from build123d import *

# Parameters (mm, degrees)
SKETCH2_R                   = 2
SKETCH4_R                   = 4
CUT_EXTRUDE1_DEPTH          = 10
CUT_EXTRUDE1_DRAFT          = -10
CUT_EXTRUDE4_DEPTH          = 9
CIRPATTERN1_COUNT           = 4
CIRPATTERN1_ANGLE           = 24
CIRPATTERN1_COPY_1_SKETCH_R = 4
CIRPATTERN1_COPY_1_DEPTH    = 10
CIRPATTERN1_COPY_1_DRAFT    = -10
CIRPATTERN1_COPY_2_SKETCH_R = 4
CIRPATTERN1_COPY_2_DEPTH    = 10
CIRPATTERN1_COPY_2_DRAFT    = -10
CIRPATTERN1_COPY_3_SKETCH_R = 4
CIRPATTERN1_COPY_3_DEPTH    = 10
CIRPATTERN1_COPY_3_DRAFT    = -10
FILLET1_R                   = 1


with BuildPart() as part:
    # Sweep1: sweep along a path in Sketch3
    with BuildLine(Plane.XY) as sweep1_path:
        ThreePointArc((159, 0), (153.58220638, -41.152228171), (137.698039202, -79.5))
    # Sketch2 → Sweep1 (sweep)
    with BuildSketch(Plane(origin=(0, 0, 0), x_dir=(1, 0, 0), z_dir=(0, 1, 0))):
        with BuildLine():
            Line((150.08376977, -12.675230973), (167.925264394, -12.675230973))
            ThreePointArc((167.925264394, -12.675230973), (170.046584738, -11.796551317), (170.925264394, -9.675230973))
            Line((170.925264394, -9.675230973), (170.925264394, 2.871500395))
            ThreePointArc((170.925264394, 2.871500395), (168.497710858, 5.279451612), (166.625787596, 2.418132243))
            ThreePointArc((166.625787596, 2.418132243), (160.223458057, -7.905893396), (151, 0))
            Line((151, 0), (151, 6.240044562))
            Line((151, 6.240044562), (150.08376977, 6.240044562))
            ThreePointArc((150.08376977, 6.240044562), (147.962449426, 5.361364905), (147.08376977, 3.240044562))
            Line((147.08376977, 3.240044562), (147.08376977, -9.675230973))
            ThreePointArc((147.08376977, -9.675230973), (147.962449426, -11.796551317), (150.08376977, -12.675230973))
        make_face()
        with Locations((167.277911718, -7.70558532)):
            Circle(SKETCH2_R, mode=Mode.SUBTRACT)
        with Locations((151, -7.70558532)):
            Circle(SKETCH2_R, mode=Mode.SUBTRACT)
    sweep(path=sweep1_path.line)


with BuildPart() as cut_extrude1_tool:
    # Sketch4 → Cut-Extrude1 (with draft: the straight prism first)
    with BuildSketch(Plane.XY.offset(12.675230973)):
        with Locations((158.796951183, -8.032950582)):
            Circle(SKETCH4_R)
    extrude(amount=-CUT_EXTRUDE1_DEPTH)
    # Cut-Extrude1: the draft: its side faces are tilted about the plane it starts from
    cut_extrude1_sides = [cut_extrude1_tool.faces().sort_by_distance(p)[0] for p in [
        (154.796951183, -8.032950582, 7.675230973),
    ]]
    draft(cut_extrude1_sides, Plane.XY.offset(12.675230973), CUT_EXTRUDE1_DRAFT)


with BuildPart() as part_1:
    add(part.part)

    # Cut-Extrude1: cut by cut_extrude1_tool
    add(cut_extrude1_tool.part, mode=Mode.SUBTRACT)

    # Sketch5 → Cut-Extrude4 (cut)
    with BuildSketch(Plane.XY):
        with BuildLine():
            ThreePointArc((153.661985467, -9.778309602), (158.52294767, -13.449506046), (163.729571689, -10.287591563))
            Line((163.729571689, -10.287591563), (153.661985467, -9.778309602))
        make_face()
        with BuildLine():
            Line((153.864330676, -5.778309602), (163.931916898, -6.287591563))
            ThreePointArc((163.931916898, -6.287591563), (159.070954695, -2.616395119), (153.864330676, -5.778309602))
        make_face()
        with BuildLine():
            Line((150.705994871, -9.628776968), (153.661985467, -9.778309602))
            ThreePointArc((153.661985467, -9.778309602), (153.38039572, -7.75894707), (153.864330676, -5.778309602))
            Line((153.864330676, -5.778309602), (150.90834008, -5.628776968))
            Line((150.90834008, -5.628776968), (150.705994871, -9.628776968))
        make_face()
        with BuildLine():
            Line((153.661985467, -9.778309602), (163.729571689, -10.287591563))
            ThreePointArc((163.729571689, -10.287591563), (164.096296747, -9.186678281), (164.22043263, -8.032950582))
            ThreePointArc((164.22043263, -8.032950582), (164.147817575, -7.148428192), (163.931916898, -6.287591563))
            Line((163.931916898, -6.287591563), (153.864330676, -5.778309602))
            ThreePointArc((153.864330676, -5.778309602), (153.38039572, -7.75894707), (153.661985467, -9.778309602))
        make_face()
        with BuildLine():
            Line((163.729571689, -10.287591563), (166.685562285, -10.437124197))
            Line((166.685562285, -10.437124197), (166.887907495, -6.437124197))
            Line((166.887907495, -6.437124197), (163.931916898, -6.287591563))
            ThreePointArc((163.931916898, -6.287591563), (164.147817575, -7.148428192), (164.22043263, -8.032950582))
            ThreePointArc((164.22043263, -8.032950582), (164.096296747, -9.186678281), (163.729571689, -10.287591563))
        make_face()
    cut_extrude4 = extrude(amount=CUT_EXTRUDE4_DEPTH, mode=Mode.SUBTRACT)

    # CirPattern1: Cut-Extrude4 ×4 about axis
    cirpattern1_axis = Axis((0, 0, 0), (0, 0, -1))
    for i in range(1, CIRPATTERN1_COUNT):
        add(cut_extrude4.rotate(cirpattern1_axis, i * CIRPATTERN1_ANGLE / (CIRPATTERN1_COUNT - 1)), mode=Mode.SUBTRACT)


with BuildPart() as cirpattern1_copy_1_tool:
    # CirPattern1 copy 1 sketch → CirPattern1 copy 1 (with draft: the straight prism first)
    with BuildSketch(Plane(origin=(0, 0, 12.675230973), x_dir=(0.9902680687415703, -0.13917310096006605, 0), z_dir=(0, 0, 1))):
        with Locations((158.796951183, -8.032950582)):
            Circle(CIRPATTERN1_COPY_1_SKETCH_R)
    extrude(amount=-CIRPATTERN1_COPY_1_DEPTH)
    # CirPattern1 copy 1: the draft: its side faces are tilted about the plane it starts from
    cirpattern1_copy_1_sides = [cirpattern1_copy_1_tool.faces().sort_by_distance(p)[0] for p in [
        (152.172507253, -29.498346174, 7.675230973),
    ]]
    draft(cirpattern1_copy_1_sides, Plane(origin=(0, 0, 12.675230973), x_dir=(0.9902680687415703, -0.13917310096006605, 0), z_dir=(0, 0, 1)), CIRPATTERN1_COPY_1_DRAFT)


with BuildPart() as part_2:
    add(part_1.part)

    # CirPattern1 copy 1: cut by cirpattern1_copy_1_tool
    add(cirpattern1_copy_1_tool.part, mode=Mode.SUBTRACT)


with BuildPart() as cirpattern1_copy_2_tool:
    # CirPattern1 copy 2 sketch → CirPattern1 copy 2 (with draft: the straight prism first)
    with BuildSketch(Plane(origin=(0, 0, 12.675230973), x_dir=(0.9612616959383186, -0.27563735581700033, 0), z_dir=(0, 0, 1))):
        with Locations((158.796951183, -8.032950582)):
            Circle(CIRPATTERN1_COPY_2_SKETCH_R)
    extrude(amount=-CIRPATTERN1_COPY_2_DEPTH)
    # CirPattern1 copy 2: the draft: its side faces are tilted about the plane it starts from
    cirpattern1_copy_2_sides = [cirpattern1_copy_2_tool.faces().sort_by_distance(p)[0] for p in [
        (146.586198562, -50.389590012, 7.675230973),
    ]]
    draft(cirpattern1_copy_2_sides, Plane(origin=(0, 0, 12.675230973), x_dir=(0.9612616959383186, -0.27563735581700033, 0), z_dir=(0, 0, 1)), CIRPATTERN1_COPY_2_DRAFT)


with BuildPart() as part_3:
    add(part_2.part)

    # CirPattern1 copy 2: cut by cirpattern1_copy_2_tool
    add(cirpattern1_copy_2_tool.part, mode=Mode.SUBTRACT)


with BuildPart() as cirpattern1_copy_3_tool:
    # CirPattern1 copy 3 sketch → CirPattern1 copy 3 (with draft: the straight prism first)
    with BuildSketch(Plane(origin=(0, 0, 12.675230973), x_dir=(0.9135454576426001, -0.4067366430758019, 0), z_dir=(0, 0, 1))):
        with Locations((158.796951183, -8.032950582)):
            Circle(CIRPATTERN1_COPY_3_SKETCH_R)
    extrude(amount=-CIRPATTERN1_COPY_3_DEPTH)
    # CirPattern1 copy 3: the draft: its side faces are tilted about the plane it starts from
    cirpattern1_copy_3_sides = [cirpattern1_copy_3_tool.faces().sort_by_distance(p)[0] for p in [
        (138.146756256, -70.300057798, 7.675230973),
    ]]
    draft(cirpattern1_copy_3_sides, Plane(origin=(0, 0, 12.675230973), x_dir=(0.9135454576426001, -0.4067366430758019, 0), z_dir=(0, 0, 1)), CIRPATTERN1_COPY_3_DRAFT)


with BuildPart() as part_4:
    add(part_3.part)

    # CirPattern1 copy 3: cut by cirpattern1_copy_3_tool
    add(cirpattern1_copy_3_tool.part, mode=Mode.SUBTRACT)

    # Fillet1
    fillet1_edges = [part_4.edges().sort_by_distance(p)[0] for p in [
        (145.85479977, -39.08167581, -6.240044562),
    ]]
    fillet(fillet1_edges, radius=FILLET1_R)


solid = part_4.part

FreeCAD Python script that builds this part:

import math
import FreeCAD as App
import Part
import Sketcher
Q = App.Units.Quantity


def edges_at(feature, points):
    """Names of the edges that pass closest to the given points."""
    edges = feature.Shape.Edges
    near = lambda p: min(range(len(edges)), key=lambda i: edges[i].distToShape(Part.Vertex(*p))[0])
    return sorted({f"Edge{near(p) + 1}" for p in points})


def faces_at(feature, points):
    """Names of the faces that lie closest to the given points."""
    faces = feature.Shape.Faces
    near = lambda p: min(range(len(faces)), key=lambda i: faces[i].distToShape(Part.Vertex(*p))[0])
    return sorted({f"Face{near(p) + 1}" for p in points})

doc = App.newDocument("Part")
params = doc.addObject("Spreadsheet::Sheet", "Params")
for row, (alias, value) in enumerate([
    ("sketch1_diameter", "4 mm"),
    ("sketch1_radius", "3 mm"),
    ("sketch1_radius2", "8 mm"),
    ("sketch2_radius", "159 mm"),
    ("sketch3_diameter", "8 mm"),
    ("pad1_length", "10 mm"),
    ("draft_angle", "10 deg"),
    ("pocket1_length", "9 mm"),
    ("sketch5_diameter", "8 mm"),
    ("pad2_length", "10 mm"),
    ("draft2_angle", "10 deg"),
    ("sketch6_diameter", "8 mm"),
    ("pad3_length", "10 mm"),
    ("draft3_angle", "10 deg"),
    ("sketch7_diameter", "8 mm"),
    ("pad4_length", "10 mm"),
    ("draft4_angle", "10 deg"),
    ("fillet_radius", "1 mm"),
], start=1):
    params.set(f"A{row}", alias)
    params.set(f"B{row}", "=" + value)
    params.setAlias(f"B{row}", alias)

body = doc.addObject("PartDesign::Body", "Body")

# Sketch on XZ plane
sketch1 = body.newObject("Sketcher::SketchObject", "Sketch")
sketch1.AttachmentSupport = (doc.getObject("XZ_Plane"), [""])
sketch1.MapMode = "FlatFace"
sketch1.addGeometry(Part.LineSegment(App.Vector(150.08377, 12.675231, 0), App.Vector(167.925264, 12.675231, 0)), False)
sketch1.addGeometry(Part.ArcOfCircle(Part.Circle(App.Vector(167.925264, 9.675231, 0), App.Vector(0, 0, 1), 3), math.radians(0), math.radians(90)), False)
sketch1.addGeometry(Part.LineSegment(App.Vector(170.925264, 9.675231, 0), App.Vector(170.925264, -2.8715, 0)), False)
sketch1.addGeometry(Part.ArcOfCircle(Part.Circle(App.Vector(168.7291, -3.085091, 0), App.Vector(0, 0, 1), 2.206526), math.radians(162.406213), math.radians(365.554908)), False)
sketch1.addGeometry(Part.ArcOfCircle(Part.Circle(App.Vector(159, 0, 0), App.Vector(0, 0, 1), 8), math.radians(-17.593787), math.radians(180)), False)
sketch1.addGeometry(Part.LineSegment(App.Vector(151, 0, 0), App.Vector(151, -6.240045, 0)), False)
sketch1.addGeometry(Part.LineSegment(App.Vector(151, -6.240045, 0), App.Vector(150.08377, -6.240045, 0)), False)
sketch1.addGeometry(Part.ArcOfCircle(Part.Circle(App.Vector(150.08377, -3.240045, 0), App.Vector(0, 0, 1), 3), math.radians(180), math.radians(270)), False)
sketch1.addGeometry(Part.LineSegment(App.Vector(147.08377, -3.240045, 0), App.Vector(147.08377, 9.675231, 0)), False)
sketch1.addGeometry(Part.ArcOfCircle(Part.Circle(App.Vector(150.08377, 9.675231, 0), App.Vector(0, 0, 1), 3), math.radians(90), math.radians(180)), False)
sketch1.addGeometry(Part.Circle(App.Vector(151, 7.705585, 0), App.Vector(0, 0, 1), 2), False)
sketch1.addGeometry(Part.Circle(App.Vector(167.277912, 7.705585, 0), App.Vector(0, 0, 1), 2), False)
sketch1.addConstraint(Sketcher.Constraint("Tangent", 0, 2, 1, 2))
sketch1.addConstraint(Sketcher.Constraint("Tangent", 1, 1, 2, 1))
sketch1.addConstraint(Sketcher.Constraint("Coincident", 2, 2, 3, 2))
sketch1.addConstraint(Sketcher.Constraint("Tangent", 3, 1, 4, 1))
sketch1.addConstraint(Sketcher.Constraint("Tangent", 4, 2, 5, 1))
sketch1.addConstraint(Sketcher.Constraint("Coincident", 5, 2, 6, 1))
sketch1.addConstraint(Sketcher.Constraint("Tangent", 6, 2, 7, 2))
sketch1.addConstraint(Sketcher.Constraint("Tangent", 7, 1, 8, 1))
sketch1.addConstraint(Sketcher.Constraint("Tangent", 8, 2, 9, 2))
sketch1.addConstraint(Sketcher.Constraint("Tangent", 9, 1, 0, 1))
sketch1.addConstraint(Sketcher.Constraint("Horizontal", 0))
sketch1.addConstraint(Sketcher.Constraint("Vertical", 2))
sketch1.addConstraint(Sketcher.Constraint("Vertical", 5))
sketch1.addConstraint(Sketcher.Constraint("Horizontal", 6))
sketch1.addConstraint(Sketcher.Constraint("Vertical", 8))
sketch1.addConstraint(Sketcher.Constraint("Equal", 1, 7))
sketch1.addConstraint(Sketcher.Constraint("Equal", 7, 9))
sketch1.addConstraint(Sketcher.Constraint("Equal", 10, 11))
sketch1.addConstraint(Sketcher.Constraint("PointOnObject", 4, 3, -1))
sketch1.addConstraint(Sketcher.Constraint("Horizontal", 10, 3, 11, 3))
sketch1.addConstraint(Sketcher.Constraint("Vertical", 10, 3, 4, 2))
sketch1.addConstraint(Sketcher.Constraint("Diameter", 10, Q("4 mm")))
sketch1.addConstraint(Sketcher.Constraint("Radius", 1, Q("3 mm")))
sketch1.addConstraint(Sketcher.Constraint("Radius", 4, Q("8 mm")))
sketch1.addConstraint(Sketcher.Constraint("DistanceX", -1, 1, 4, 3, Q("159 mm")))
sketch1.addConstraint(Sketcher.Constraint("Radius", 3, Q("2.206526 mm")))
sketch1.addConstraint(Sketcher.Constraint("DistanceX", 6, 2, 6, 1, Q("0.91623 mm")))
sketch1.addConstraint(Sketcher.Constraint("DistanceY", 2, 2, 2, 1, Q("12.546731 mm")))
sketch1.addConstraint(Sketcher.Constraint("DistanceX", -1, 1, 3, 3, Q("168.7291 mm")))
sketch1.addConstraint(Sketcher.Constraint("DistanceY", 2, 2, -1, 1, Q("2.8715 mm")))
sketch1.addConstraint(Sketcher.Constraint("DistanceY", 5, 2, 5, 1, Q("6.240045 mm")))
sketch1.addConstraint(Sketcher.Constraint("DistanceX", -1, 1, 11, 3, Q("167.277912 mm")))
sketch1.addConstraint(Sketcher.Constraint("DistanceY", 7, 3, 10, 3, Q("10.94563 mm")))
sketch1.setExpression("Constraints[21]", "Params.sketch1_diameter")
sketch1.setExpression("Constraints[22]", "Params.sketch1_radius")
sketch1.setExpression("Constraints[23]", "Params.sketch1_radius2")

# Sketch on XY plane
sketch2 = body.newObject("Sketcher::SketchObject", "Sketch001")
sketch2.AttachmentSupport = (doc.getObject("XY_Plane"), [""])
sketch2.MapMode = "FlatFace"
sketch2.addGeometry(Part.ArcOfCircle(Part.Circle(App.Vector(0, 0, 0), App.Vector(0, 0, 1), 159), math.radians(-30), math.radians(0)), False)
sketch2.addConstraint(Sketcher.Constraint("Coincident", 0, 3, -1, 1))
sketch2.addConstraint(Sketcher.Constraint("PointOnObject", 0, 2, -1))
sketch2.addConstraint(Sketcher.Constraint("Radius", 0, Q("159 mm")))
sketch2.addConstraint(Sketcher.Constraint("DistanceY", 0, 1, -1, 1, Q("79.5 mm")))
sketch2.setExpression("Constraints[2]", "Params.sketch2_radius")
doc.recompute()

additivepipe = body.newObject("PartDesign::AdditivePipe", "AdditivePipe")
additivepipe.Profile = sketch1
additivepipe.Spine = (sketch2, ["Edge1"])
body2 = doc.addObject("PartDesign::Body", "Body001")

# Sketch on XY plane
sketch3 = body2.newObject("Sketcher::SketchObject", "Sketch002")
sketch3.AttachmentSupport = (doc.getObject("XY_Plane001"), [""])
sketch3.MapMode = "FlatFace"
sketch3.AttachmentOffset = App.Placement(App.Vector(0, 0, 12.675231), App.Rotation())
sketch3.addGeometry(Part.Circle(App.Vector(158.796951, -8.032951, 0), App.Vector(0, 0, 1), 4), False)
sketch3.addConstraint(Sketcher.Constraint("Diameter", 0, Q("8 mm")))
sketch3.addConstraint(Sketcher.Constraint("DistanceX", -1, 1, 0, 3, Q("158.796951 mm")))
sketch3.addConstraint(Sketcher.Constraint("DistanceY", 0, 3, -1, 1, Q("8.032951 mm")))
sketch3.setExpression("Constraints[0]", "Params.sketch3_diameter")
pad1 = body2.newObject("PartDesign::Pad", "Pad")
pad1.Profile = sketch3
pad1.setExpression("Length", "Params.pad1_length")
pad1.Reversed = True
doc.recompute()

datumplane = body2.newObject("PartDesign::Plane", "DatumPlane")
datumplane.AttachmentSupport = (doc.getObject("XY_Plane001"), [""])
datumplane.MapMode = "FlatFace"
datumplane.AttachmentOffset = App.Placement(App.Vector(0, 0, 12.675231), App.Rotation())
draft = body2.newObject("PartDesign::Draft", "Draft")
draft.Base = (pad1, faces_at(pad1, [(154.797, -8.033, 7.675)]))
draft.NeutralPlane = (datumplane, [""])
draft.setExpression("Angle", "Params.draft_angle")
draft.Reversed = True
doc.recompute()

boolean = body.newObject("PartDesign::Boolean", "Boolean")
boolean.Type = "Cut"
boolean.addObjects([body2])

# Sketch on XY plane
sketch4 = body.newObject("Sketcher::SketchObject", "Sketch003")
sketch4.AttachmentSupport = (doc.getObject("XY_Plane"), [""])
sketch4.MapMode = "FlatFace"
sketch4.addGeometry(Part.ArcOfCircle(Part.Circle(App.Vector(158.796951, -8.032951, 0), App.Vector(0, 0, 1), 5.423481), math.radians(-161.227261), math.radians(-24.564565)), False)
sketch4.addGeometry(Part.LineSegment(App.Vector(163.729572, -10.287592, 0), App.Vector(166.685562, -10.437124, 0)), False)
sketch4.addGeometry(Part.LineSegment(App.Vector(166.685562, -10.437124, 0), App.Vector(166.887907, -6.437124, 0)), False)
sketch4.addGeometry(Part.LineSegment(App.Vector(166.887907, -6.437124, 0), App.Vector(163.931917, -6.287592, 0)), False)
sketch4.addGeometry(Part.ArcOfCircle(Part.Circle(App.Vector(158.796951, -8.032951, 0), App.Vector(0, 0, 1), 5.423481), math.radians(18.772739), math.radians(155.435435)), False)
sketch4.addGeometry(Part.LineSegment(App.Vector(153.864331, -5.77831, 0), App.Vector(150.90834, -5.628777, 0)), False)
sketch4.addGeometry(Part.LineSegment(App.Vector(150.90834, -5.628777, 0), App.Vector(150.705995, -9.628777, 0)), False)
sketch4.addGeometry(Part.LineSegment(App.Vector(150.705995, -9.628777, 0), App.Vector(153.661985, -9.77831, 0)), False)
sketch4.addConstraint(Sketcher.Constraint("Coincident", 0, 2, 1, 1))
sketch4.addConstraint(Sketcher.Constraint("Coincident", 1, 2, 2, 1))
sketch4.addConstraint(Sketcher.Constraint("Coincident", 2, 2, 3, 1))
sketch4.addConstraint(Sketcher.Constraint("Coincident", 3, 2, 4, 1))
sketch4.addConstraint(Sketcher.Constraint("Coincident", 4, 2, 5, 1))
sketch4.addConstraint(Sketcher.Constraint("Coincident", 5, 2, 6, 1))
sketch4.addConstraint(Sketcher.Constraint("Coincident", 6, 2, 7, 1))
sketch4.addConstraint(Sketcher.Constraint("Coincident", 7, 2, 0, 1))
sketch4.addConstraint(Sketcher.Constraint("Coincident", 4, 3, 0, 3))
sketch4.addConstraint(Sketcher.Constraint("Equal", 0, 4))
sketch4.addConstraint(Sketcher.Constraint("Perpendicular", 1, 2))
sketch4.addConstraint(Sketcher.Constraint("Perpendicular", 2, 3))
sketch4.addConstraint(Sketcher.Constraint("Parallel", 3, 5))
sketch4.addConstraint(Sketcher.Constraint("Perpendicular", 5, 6))
sketch4.addConstraint(Sketcher.Constraint("Perpendicular", 6, 7))
sketch4.addConstraint(Sketcher.Constraint("Equal", 1, 3))
sketch4.addConstraint(Sketcher.Constraint("Equal", 3, 5))
sketch4.addConstraint(Sketcher.Constraint("Equal", 2, 6))
sketch4.addConstraint(Sketcher.Constraint("Equal", 5, 7))
sketch4.addConstraint(Sketcher.Constraint("DistanceY", 1, 2, 2, 2, Q("4 mm")))
sketch4.addConstraint(Sketcher.Constraint("Radius", 0, Q("5.423481 mm")))
sketch4.addConstraint(Sketcher.Constraint("Distance", 1, Q("2.95977 mm")))
sketch4.addConstraint(Sketcher.Constraint("DistanceX", -1, 1, 0, 3, Q("158.796951 mm")))
sketch4.addConstraint(Sketcher.Constraint("DistanceY", 0, 3, -1, 1, Q("8.032951 mm")))
sketch4.addConstraint(Sketcher.Constraint("DistanceX", -1, 1, 0, 2, Q("163.729572 mm")))
pocket1 = body.newObject("PartDesign::Pocket", "Pocket")
pocket1.Profile = sketch4
pocket1.setExpression("Length", "Params.pocket1_length")
pocket1.Reversed = True
doc.recompute()

polarpattern = body.newObject("PartDesign::PolarPattern", "PolarPattern")
polarpattern.Originals = [pocket1]
polarpattern.Axis = (doc.getObject("Z_Axis"), [""])
polarpattern.Angle = 24
polarpattern.Occurrences = 4
polarpattern.Reversed = True
body.Tip = polarpattern
body3 = doc.addObject("PartDesign::Body", "Body002")

# Sketch on XY plane
sketch5 = body3.newObject("Sketcher::SketchObject", "Sketch004")
sketch5.AttachmentSupport = (doc.getObject("XY_Plane002"), [""])
sketch5.MapMode = "FlatFace"
sketch5.AttachmentOffset = App.Placement(App.Vector(0, 0, 12.675231), App.Rotation())
sketch5.addGeometry(Part.Circle(App.Vector(156.13358, -30.055039, 0), App.Vector(0, 0, 1), 4), False)
sketch5.addConstraint(Sketcher.Constraint("Diameter", 0, Q("8 mm")))
sketch5.addConstraint(Sketcher.Constraint("DistanceX", -1, 1, 0, 3, Q("156.13358 mm")))
sketch5.addConstraint(Sketcher.Constraint("DistanceY", 0, 3, -1, 1, Q("30.055039 mm")))
sketch5.setExpression("Constraints[0]", "Params.sketch5_diameter")
pad2 = body3.newObject("PartDesign::Pad", "Pad001")
pad2.Profile = sketch5
pad2.setExpression("Length", "Params.pad2_length")
pad2.Reversed = True
doc.recompute()

datumplane2 = body3.newObject("PartDesign::Plane", "DatumPlane001")
datumplane2.AttachmentSupport = (doc.getObject("XY_Plane002"), [""])
datumplane2.MapMode = "FlatFace"
datumplane2.AttachmentOffset = App.Placement(App.Vector(0, 0, 12.675231), App.Rotation())
draft2 = body3.newObject("PartDesign::Draft", "Draft001")
draft2.Base = (pad2, faces_at(pad2, [(152.173, -29.498, 7.675)]))
draft2.NeutralPlane = (datumplane2, [""])
draft2.setExpression("Angle", "Params.draft2_angle")
draft2.Reversed = True
doc.recompute()

boolean2 = body.newObject("PartDesign::Boolean", "Boolean001")
boolean2.Type = "Cut"
boolean2.addObjects([body3])
body4 = doc.addObject("PartDesign::Body", "Body003")

# Sketch on XY plane
sketch6 = body4.newObject("Sketcher::SketchObject", "Sketch005")
sketch6.AttachmentSupport = (doc.getObject("XY_Plane003"), [""])
sketch6.MapMode = "FlatFace"
sketch6.AttachmentOffset = App.Placement(App.Vector(0, 0, 12.675231), App.Rotation())
sketch6.addGeometry(Part.Circle(App.Vector(150.431245, -51.492139, 0), App.Vector(0, 0, 1), 4), False)
sketch6.addConstraint(Sketcher.Constraint("Diameter", 0, Q("8 mm")))
sketch6.addConstraint(Sketcher.Constraint("DistanceY", 0, 3, -1, 1, Q("51.492139 mm")))
sketch6.addConstraint(Sketcher.Constraint("DistanceX", -1, 1, 0, 3, Q("150.431245 mm")))
sketch6.setExpression("Constraints[0]", "Params.sketch6_diameter")
pad3 = body4.newObject("PartDesign::Pad", "Pad002")
pad3.Profile = sketch6
pad3.setExpression("Length", "Params.pad3_length")
pad3.Reversed = True
doc.recompute()

datumplane3 = body4.newObject("PartDesign::Plane", "DatumPlane002")
datumplane3.AttachmentSupport = (doc.getObject("XY_Plane003"), [""])
datumplane3.MapMode = "FlatFace"
datumplane3.AttachmentOffset = App.Placement(App.Vector(0, 0, 12.675231), App.Rotation())
draft3 = body4.newObject("PartDesign::Draft", "Draft002")
draft3.Base = (pad3, faces_at(pad3, [(146.586, -50.39, 7.675)]))
draft3.NeutralPlane = (datumplane3, [""])
draft3.setExpression("Angle", "Params.draft3_angle")
draft3.Reversed = True
doc.recompute()

boolean3 = body.newObject("PartDesign::Boolean", "Boolean002")
boolean3.Type = "Cut"
boolean3.addObjects([body4])
body5 = doc.addObject("PartDesign::Body", "Body004")

# Sketch on XY plane
sketch7 = body5.newObject("Sketcher::SketchObject", "Sketch006")
sketch7.AttachmentSupport = (doc.getObject("XY_Plane004"), [""])
sketch7.MapMode = "FlatFace"
sketch7.AttachmentOffset = App.Placement(App.Vector(0, 0, 12.675231), App.Rotation())
sketch7.addGeometry(Part.Circle(App.Vector(141.800938, -71.927004, 0), App.Vector(0, 0, 1), 4), False)
sketch7.addConstraint(Sketcher.Constraint("Diameter", 0, Q("8 mm")))
sketch7.addConstraint(Sketcher.Constraint("DistanceX", -1, 1, 0, 3, Q("141.800938 mm")))
sketch7.addConstraint(Sketcher.Constraint("DistanceY", 0, 3, -1, 1, Q("71.927004 mm")))
sketch7.setExpression("Constraints[0]", "Params.sketch7_diameter")
pad4 = body5.newObject("PartDesign::Pad", "Pad003")
pad4.Profile = sketch7
pad4.setExpression("Length", "Params.pad4_length")
pad4.Reversed = True
doc.recompute()

datumplane4 = body5.newObject("PartDesign::Plane", "DatumPlane003")
datumplane4.AttachmentSupport = (doc.getObject("XY_Plane004"), [""])
datumplane4.MapMode = "FlatFace"
datumplane4.AttachmentOffset = App.Placement(App.Vector(0, 0, 12.675231), App.Rotation())
draft4 = body5.newObject("PartDesign::Draft", "Draft003")
draft4.Base = (pad4, faces_at(pad4, [(138.147, -70.3, 7.675)]))
draft4.NeutralPlane = (datumplane4, [""])
draft4.setExpression("Angle", "Params.draft4_angle")
draft4.Reversed = True
doc.recompute()

boolean4 = body.newObject("PartDesign::Boolean", "Boolean003")
boolean4.Type = "Cut"
boolean4.addObjects([body5])
doc.recompute()

fillet = body.newObject("PartDesign::Fillet", "Fillet")
fillet.Base = (boolean4, edges_at(boolean4, [(145.855, -39.082, -6.24)]))
fillet.setExpression("Radius", "Params.fillet_radius")

doc.recompute()
